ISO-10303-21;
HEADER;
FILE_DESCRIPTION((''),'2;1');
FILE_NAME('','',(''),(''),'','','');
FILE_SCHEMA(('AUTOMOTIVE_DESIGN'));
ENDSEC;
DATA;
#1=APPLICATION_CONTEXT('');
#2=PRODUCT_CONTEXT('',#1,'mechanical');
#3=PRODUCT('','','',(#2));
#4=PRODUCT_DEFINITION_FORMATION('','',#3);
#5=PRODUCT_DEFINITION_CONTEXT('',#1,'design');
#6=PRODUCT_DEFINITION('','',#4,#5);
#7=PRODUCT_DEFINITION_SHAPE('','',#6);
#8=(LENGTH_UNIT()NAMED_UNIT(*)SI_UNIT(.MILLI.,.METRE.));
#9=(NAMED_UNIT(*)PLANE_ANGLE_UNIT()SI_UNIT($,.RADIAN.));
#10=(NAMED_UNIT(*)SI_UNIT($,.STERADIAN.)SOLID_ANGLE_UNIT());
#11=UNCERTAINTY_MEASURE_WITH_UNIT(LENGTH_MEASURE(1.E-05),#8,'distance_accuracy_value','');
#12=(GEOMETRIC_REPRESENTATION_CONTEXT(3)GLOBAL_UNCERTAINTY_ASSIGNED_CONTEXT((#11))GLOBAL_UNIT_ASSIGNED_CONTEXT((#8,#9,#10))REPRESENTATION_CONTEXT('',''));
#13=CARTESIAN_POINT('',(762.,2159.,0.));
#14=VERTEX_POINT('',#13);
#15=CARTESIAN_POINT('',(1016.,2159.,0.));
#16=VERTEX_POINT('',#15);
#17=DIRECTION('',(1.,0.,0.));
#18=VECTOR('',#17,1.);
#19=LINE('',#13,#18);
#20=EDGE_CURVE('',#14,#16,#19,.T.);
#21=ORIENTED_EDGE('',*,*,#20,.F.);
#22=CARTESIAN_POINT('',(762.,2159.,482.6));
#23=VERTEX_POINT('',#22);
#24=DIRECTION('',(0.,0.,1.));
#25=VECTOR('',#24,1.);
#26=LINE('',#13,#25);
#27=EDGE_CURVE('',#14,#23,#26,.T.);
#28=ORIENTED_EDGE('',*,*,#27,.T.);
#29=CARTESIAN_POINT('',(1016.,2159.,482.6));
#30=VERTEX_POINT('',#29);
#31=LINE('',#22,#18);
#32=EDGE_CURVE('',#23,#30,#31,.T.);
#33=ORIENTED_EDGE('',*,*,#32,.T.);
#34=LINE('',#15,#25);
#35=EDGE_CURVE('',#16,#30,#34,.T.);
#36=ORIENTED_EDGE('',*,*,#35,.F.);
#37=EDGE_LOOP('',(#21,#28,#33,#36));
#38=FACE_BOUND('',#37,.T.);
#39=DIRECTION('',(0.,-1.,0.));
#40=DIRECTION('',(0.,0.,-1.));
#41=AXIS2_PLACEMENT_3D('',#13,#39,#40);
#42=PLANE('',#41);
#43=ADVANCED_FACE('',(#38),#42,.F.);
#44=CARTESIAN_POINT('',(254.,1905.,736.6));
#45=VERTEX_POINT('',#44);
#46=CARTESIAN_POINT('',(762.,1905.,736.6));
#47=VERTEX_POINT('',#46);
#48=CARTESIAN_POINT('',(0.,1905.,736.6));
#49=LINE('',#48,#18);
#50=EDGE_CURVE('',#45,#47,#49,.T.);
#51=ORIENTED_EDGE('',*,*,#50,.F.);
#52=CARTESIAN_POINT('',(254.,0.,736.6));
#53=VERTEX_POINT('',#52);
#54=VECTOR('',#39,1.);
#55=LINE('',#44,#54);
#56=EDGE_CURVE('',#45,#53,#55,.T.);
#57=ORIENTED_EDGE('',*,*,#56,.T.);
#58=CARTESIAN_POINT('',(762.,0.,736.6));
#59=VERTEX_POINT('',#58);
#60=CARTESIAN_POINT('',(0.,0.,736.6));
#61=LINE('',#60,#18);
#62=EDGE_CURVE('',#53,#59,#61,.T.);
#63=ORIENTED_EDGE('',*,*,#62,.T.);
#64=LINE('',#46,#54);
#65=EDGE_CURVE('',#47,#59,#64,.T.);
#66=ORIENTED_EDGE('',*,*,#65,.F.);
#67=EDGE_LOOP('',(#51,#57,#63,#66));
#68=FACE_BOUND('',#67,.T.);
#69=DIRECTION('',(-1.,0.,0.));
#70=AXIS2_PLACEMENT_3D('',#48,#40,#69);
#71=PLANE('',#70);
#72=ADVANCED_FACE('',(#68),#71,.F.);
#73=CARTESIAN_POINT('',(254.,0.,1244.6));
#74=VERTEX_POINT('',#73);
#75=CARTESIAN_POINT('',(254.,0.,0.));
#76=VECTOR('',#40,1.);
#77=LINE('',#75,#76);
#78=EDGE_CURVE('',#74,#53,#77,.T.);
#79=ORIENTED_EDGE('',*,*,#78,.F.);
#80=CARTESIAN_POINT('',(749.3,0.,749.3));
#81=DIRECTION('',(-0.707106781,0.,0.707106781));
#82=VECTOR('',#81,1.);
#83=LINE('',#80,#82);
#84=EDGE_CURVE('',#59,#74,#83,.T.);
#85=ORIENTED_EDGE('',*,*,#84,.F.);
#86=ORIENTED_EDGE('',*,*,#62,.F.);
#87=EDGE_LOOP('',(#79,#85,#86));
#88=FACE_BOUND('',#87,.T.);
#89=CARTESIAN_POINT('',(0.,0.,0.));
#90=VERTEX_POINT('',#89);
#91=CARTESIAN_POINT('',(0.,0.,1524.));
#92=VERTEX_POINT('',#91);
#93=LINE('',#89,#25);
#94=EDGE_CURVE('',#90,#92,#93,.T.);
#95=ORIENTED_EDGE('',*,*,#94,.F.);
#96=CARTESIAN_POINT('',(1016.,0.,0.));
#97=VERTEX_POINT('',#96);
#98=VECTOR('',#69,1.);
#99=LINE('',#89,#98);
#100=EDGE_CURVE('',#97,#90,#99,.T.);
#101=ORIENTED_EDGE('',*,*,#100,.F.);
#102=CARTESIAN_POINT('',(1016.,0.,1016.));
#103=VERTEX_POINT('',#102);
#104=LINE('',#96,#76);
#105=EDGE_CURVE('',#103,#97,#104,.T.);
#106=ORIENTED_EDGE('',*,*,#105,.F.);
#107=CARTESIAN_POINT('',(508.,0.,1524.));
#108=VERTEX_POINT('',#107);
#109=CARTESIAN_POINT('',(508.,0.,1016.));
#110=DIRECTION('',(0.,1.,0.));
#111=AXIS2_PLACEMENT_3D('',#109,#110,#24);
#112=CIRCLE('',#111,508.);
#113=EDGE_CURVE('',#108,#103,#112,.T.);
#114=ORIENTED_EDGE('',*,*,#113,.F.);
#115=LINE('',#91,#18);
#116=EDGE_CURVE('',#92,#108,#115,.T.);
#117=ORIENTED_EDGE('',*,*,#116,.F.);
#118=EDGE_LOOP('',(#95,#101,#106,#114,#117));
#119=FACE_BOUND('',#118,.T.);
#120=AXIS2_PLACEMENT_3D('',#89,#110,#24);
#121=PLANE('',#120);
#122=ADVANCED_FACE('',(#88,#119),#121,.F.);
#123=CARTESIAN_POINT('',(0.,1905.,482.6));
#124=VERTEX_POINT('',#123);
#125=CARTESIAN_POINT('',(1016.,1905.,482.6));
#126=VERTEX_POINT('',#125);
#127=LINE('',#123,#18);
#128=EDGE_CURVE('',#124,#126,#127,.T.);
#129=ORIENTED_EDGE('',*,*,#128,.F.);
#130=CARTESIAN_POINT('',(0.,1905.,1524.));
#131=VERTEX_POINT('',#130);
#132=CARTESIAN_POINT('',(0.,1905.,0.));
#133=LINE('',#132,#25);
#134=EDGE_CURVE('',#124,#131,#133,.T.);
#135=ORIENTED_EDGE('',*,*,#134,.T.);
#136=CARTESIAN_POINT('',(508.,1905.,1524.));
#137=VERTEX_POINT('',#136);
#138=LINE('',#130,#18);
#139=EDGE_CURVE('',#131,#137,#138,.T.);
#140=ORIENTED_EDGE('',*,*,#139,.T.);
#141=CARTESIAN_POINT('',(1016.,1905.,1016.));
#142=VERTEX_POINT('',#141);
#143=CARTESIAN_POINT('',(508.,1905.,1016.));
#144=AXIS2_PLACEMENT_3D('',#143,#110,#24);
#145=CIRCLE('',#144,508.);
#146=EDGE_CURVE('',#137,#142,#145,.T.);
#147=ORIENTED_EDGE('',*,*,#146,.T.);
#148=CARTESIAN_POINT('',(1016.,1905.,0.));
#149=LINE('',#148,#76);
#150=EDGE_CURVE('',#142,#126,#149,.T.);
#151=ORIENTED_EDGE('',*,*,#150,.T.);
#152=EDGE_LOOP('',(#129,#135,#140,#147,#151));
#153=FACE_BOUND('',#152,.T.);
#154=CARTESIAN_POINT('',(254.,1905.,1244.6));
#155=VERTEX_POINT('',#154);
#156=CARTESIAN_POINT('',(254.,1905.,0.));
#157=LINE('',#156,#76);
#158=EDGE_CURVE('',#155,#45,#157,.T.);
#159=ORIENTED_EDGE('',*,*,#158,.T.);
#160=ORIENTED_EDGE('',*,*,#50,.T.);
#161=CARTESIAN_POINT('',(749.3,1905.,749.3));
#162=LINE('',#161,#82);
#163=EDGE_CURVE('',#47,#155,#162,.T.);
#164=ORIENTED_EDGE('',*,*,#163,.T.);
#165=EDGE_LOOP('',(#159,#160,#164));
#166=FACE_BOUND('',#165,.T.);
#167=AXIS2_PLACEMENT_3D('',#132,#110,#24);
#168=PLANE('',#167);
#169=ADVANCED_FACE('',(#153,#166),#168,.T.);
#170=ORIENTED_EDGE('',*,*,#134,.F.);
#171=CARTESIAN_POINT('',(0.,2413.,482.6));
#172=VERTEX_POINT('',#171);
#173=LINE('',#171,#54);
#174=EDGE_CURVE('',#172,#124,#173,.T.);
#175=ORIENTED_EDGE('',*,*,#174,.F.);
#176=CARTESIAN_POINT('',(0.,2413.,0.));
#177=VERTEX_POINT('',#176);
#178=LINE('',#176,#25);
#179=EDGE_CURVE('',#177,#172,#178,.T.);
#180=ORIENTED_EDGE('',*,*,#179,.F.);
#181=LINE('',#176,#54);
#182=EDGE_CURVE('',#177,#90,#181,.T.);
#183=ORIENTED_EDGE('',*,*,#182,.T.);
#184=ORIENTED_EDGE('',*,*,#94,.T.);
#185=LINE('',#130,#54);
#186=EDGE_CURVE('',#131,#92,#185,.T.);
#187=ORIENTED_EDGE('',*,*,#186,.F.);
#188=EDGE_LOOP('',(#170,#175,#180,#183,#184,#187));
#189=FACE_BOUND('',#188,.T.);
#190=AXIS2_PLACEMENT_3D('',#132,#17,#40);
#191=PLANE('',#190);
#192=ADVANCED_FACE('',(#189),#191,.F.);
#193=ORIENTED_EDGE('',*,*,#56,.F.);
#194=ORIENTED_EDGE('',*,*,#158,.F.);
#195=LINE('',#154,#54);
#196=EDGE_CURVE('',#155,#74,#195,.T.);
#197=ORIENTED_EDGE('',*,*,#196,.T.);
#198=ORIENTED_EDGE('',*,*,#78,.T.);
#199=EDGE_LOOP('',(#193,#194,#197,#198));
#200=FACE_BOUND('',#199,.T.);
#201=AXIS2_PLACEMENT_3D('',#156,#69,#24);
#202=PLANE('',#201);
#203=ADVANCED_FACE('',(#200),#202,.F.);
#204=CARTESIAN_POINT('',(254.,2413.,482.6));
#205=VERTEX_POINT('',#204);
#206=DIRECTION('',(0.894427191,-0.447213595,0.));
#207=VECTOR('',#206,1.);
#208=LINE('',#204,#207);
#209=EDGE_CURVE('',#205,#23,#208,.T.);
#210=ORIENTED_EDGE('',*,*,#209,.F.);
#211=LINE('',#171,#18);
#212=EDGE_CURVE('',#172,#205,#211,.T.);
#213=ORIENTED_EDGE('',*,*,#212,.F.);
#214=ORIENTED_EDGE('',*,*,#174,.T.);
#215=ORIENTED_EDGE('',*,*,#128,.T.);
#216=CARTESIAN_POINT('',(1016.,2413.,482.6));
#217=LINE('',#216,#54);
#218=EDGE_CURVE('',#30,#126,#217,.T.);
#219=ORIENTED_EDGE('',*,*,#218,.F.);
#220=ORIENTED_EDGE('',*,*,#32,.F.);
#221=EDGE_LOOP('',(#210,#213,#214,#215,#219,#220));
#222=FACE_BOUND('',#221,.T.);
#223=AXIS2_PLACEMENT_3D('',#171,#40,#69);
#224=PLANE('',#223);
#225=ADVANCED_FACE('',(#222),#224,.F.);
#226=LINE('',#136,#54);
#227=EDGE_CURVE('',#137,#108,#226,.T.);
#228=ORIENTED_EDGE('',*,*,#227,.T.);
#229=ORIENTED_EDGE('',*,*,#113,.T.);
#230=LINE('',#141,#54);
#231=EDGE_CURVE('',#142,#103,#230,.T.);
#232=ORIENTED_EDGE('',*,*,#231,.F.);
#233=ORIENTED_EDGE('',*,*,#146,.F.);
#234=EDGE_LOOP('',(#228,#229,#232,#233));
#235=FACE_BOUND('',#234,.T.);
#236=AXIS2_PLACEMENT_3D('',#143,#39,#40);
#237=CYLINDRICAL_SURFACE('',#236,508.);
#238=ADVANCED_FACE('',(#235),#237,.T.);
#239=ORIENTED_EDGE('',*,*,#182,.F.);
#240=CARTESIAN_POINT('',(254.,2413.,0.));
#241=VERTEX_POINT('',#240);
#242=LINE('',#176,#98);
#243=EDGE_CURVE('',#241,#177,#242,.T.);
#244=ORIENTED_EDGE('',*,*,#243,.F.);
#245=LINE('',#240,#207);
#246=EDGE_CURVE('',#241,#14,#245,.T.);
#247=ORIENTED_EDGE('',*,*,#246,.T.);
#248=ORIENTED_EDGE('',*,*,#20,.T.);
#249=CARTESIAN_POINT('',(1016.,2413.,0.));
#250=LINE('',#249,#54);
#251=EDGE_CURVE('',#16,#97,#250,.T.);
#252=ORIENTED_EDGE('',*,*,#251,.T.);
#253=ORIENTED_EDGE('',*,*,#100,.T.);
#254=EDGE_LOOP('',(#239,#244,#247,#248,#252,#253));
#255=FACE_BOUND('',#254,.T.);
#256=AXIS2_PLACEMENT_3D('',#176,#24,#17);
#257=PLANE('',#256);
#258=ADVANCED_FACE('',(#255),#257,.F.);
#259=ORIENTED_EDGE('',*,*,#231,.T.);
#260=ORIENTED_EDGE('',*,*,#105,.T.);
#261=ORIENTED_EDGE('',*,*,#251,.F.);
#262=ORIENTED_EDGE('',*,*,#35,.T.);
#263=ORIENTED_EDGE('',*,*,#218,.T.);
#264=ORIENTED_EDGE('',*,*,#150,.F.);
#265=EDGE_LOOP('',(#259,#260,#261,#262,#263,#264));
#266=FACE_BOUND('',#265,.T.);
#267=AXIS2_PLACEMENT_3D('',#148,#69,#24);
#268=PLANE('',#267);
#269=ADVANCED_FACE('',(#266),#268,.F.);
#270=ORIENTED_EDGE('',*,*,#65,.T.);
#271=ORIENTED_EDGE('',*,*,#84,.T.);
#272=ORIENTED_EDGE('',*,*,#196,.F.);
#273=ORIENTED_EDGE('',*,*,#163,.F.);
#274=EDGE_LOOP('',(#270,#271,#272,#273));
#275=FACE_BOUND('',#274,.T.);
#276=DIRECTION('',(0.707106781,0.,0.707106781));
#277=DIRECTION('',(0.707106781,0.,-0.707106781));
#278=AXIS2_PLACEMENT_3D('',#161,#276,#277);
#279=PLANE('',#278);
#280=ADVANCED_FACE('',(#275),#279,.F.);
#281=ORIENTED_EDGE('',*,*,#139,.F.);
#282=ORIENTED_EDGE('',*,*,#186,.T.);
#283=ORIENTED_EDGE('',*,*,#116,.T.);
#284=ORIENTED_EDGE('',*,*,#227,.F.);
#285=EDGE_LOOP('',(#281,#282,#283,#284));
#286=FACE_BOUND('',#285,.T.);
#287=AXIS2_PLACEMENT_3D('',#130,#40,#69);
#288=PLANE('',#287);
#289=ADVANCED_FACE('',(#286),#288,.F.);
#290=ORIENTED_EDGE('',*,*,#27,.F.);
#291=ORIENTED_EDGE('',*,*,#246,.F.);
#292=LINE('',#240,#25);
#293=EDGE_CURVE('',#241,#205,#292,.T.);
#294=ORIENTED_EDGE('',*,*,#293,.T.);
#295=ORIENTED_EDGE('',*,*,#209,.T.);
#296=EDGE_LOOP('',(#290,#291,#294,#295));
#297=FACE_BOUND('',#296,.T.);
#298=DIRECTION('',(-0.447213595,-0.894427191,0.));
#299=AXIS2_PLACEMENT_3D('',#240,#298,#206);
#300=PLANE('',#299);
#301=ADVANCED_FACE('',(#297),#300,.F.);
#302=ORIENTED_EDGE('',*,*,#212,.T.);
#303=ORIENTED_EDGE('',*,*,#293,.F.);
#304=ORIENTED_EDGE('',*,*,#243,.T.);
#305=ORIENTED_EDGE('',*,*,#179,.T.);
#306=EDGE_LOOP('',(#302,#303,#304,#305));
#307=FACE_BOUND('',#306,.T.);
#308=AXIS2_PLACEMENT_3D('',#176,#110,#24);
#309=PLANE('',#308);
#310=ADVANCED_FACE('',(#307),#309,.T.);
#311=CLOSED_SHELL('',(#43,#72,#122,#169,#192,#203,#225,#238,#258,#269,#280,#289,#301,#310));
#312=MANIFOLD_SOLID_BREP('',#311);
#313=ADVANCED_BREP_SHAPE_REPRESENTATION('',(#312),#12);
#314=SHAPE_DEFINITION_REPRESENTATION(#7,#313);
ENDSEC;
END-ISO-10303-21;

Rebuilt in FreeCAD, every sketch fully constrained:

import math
import FreeCAD as App
import Part
import Sketcher
from FreeCAD import Vector
Q = App.Units.Quantity

doc = App.newDocument("Part")
body = doc.addObject("PartDesign::Body", "Body")

sketch1 = body.newObject("Sketcher::SketchObject", "Sketch")
sketch1.AttachmentSupport = (doc.getObject("XZ_Plane"), [""])
sketch1.MapMode = "FlatFace"
sketch1.addGeometry(Part.LineSegment(Vector(1016, 482.6, 0), Vector(0, 482.6, 0)), False)
sketch1.addGeometry(Part.LineSegment(Vector(0, 482.6, 0), Vector(0, 1524, 0)), False)
sketch1.addGeometry(Part.LineSegment(Vector(0, 1524, 0), Vector(508, 1524, 0)), False)
sketch1.addGeometry(Part.ArcOfCircle(Part.Circle(Vector(508, 1016, 0), Vector(0, 0, 1), 508), math.radians(0), math.radians(90)), False)
sketch1.addGeometry(Part.LineSegment(Vector(1016, 1016, 0), Vector(1016, 482.6, 0)), False)
sketch1.addGeometry(Part.LineSegment(Vector(762, 736.6, 0), Vector(254, 1244.6, 0)), False)
sketch1.addGeometry(Part.LineSegment(Vector(254, 1244.6, 0), Vector(254, 736.6, 0)), False)
sketch1.addGeometry(Part.LineSegment(Vector(254, 736.6, 0), Vector(762, 736.6, 0)), False)
sketch1.addConstraint(Sketcher.Constraint("Coincident", 0, 2, 1, 1))
sketch1.addConstraint(Sketcher.Constraint("Coincident", 1, 2, 2, 1))
sketch1.addConstraint(Sketcher.Constraint("Tangent", 2, 2, 3, 2))
sketch1.addConstraint(Sketcher.Constraint("Tangent", 3, 1, 4, 1))
sketch1.addConstraint(Sketcher.Constraint("Coincident", 4, 2, 0, 1))
sketch1.addConstraint(Sketcher.Constraint("Coincident", 5, 2, 6, 1))
sketch1.addConstraint(Sketcher.Constraint("Coincident", 6, 2, 7, 1))
sketch1.addConstraint(Sketcher.Constraint("Coincident", 7, 2, 5, 1))
sketch1.addConstraint(Sketcher.Constraint("Horizontal", 0))
sketch1.addConstraint(Sketcher.Constraint("Vertical", 1))
sketch1.addConstraint(Sketcher.Constraint("Horizontal", 2))
sketch1.addConstraint(Sketcher.Constraint("Vertical", 4))
sketch1.addConstraint(Sketcher.Constraint("Vertical", 6))
sketch1.addConstraint(Sketcher.Constraint("Horizontal", 7))
sketch1.addConstraint(Sketcher.Constraint("PointOnObject", 0, 2, -2))
sketch1.addConstraint(Sketcher.Constraint("Equal", 2, 7))
sketch1.addConstraint(Sketcher.Constraint("Equal", 7, 6))
sketch1.addConstraint(Sketcher.Constraint("Radius", 3, Q("20 in")))
sketch1.addConstraint(Sketcher.Constraint("DistanceX", 0, 2, 0, 1, Q("40 in")))
sketch1.addConstraint(Sketcher.Constraint("DistanceY", 1, 1, 1, 2, Q("41 in")))
sketch1.addConstraint(Sketcher.Constraint("DistanceY", -1, 1, 3, 3, Q("40 in")))
sketch1.addConstraint(Sketcher.Constraint("DistanceX", -1, 1, 5, 2, Q("10 in")))
sketch1.addConstraint(Sketcher.Constraint("DistanceY", -1, 1, 5, 2, Q("49 in")))
pad1 = body.newObject("PartDesign::Pad", "Pad")
pad1.Profile = sketch1
pad1.Length = Q("75 in")
pad1.Reversed = True

sketch2 = body.newObject("Sketcher::SketchObject", "Sketch001")
sketch2.AttachmentSupport = (doc.getObject("XZ_Plane"), [""])
sketch2.MapMode = "FlatFace"
sketch2.addGeometry(Part.LineSegment(Vector(0, 0, 0), Vector(0, 482.6, 0)), False)
sketch2.addGeometry(Part.LineSegment(Vector(0, 482.6, 0), Vector(1016, 482.6, 0)), False)
sketch2.addGeometry(Part.LineSegment(Vector(1016, 482.6, 0), Vector(1016, 0, 0)), False)
sketch2.addGeometry(Part.LineSegment(Vector(1016, 0, 0), Vector(0, 0, 0)), False)
sketch2.addConstraint(Sketcher.Constraint("Coincident", 0, 2, 1, 1))
sketch2.addConstraint(Sketcher.Constraint("Coincident", 1, 2, 2, 1))
sketch2.addConstraint(Sketcher.Constraint("Coincident", 2, 2, 3, 1))
sketch2.addConstraint(Sketcher.Constraint("Coincident", 3, 2, 0, 1))
sketch2.addConstraint(Sketcher.Constraint("Vertical", 0))
sketch2.addConstraint(Sketcher.Constraint("Horizontal", 1))
sketch2.addConstraint(Sketcher.Constraint("Vertical", 2))
sketch2.addConstraint(Sketcher.Constraint("Horizontal", 3))
sketch2.addConstraint(Sketcher.Constraint("Coincident", 3, 2, -1, 1))
sketch2.addConstraint(Sketcher.Constraint("DistanceX", 1, 1, 1, 2, Q("40 in")))
sketch2.addConstraint(Sketcher.Constraint("DistanceY", 0, 1, 0, 2, Q("19 in")))
pad2 = body.newObject("PartDesign::Pad", "Pad001")
pad2.Profile = sketch2
pad2.Length = Q("95 in")
pad2.Reversed = True

sketch3 = body.newObject("Sketcher::SketchObject", "Sketch002")
sketch3.AttachmentSupport = (doc.getObject("XY_Plane"), [""])
sketch3.MapMode = "FlatFace"
sketch3.AttachmentOffset = App.Placement(Vector(0, 0, 19 * 25.4), App.Rotation())
sketch3.addGeometry(Part.LineSegment(Vector(254, 2413, 0), Vector(762, 2159, 0)), False)
sketch3.addGeometry(Part.LineSegment(Vector(762, 2159, 0), Vector(1016, 2159, 0)), False)
sketch3.addGeometry(Part.LineSegment(Vector(1016, 2159, 0), Vector(1016, 2413, 0)), False)
sketch3.addGeometry(Part.LineSegment(Vector(1016, 2413, 0), Vector(254, 2413, 0)), False)
sketch3.addConstraint(Sketcher.Constraint("Coincident", 0, 2, 1, 1))
sketch3.addConstraint(Sketcher.Constraint("Coincident", 1, 2, 2, 1))
sketch3.addConstraint(Sketcher.Constraint("Coincident", 2, 2, 3, 1))
sketch3.addConstraint(Sketcher.Constraint("Coincident", 3, 2, 0, 1))
sketch3.addConstraint(Sketcher.Constraint("Horizontal", 1))
sketch3.addConstraint(Sketcher.Constraint("Vertical", 2))
sketch3.addConstraint(Sketcher.Constraint("Horizontal", 3))
sketch3.addConstraint(Sketcher.Constraint("Equal", 1, 2))
sketch3.addConstraint(Sketcher.Constraint("DistanceX", 1, 1, 1, 2, Q("10 in")))
sketch3.addConstraint(Sketcher.Constraint("DistanceX", 3, 2, 3, 1, Q("30 in")))
sketch3.addConstraint(Sketcher.Constraint("DistanceX", -1, 1, 0, 2, Q("30 in")))
sketch3.addConstraint(Sketcher.Constraint("DistanceY", -1, 1, 0, 2, Q("85 in")))
pocket1 = body.newObject("PartDesign::Pocket", "Pocket")
pocket1.Profile = sketch3
pocket1.Length = Q("19 in")

doc.recompute()
